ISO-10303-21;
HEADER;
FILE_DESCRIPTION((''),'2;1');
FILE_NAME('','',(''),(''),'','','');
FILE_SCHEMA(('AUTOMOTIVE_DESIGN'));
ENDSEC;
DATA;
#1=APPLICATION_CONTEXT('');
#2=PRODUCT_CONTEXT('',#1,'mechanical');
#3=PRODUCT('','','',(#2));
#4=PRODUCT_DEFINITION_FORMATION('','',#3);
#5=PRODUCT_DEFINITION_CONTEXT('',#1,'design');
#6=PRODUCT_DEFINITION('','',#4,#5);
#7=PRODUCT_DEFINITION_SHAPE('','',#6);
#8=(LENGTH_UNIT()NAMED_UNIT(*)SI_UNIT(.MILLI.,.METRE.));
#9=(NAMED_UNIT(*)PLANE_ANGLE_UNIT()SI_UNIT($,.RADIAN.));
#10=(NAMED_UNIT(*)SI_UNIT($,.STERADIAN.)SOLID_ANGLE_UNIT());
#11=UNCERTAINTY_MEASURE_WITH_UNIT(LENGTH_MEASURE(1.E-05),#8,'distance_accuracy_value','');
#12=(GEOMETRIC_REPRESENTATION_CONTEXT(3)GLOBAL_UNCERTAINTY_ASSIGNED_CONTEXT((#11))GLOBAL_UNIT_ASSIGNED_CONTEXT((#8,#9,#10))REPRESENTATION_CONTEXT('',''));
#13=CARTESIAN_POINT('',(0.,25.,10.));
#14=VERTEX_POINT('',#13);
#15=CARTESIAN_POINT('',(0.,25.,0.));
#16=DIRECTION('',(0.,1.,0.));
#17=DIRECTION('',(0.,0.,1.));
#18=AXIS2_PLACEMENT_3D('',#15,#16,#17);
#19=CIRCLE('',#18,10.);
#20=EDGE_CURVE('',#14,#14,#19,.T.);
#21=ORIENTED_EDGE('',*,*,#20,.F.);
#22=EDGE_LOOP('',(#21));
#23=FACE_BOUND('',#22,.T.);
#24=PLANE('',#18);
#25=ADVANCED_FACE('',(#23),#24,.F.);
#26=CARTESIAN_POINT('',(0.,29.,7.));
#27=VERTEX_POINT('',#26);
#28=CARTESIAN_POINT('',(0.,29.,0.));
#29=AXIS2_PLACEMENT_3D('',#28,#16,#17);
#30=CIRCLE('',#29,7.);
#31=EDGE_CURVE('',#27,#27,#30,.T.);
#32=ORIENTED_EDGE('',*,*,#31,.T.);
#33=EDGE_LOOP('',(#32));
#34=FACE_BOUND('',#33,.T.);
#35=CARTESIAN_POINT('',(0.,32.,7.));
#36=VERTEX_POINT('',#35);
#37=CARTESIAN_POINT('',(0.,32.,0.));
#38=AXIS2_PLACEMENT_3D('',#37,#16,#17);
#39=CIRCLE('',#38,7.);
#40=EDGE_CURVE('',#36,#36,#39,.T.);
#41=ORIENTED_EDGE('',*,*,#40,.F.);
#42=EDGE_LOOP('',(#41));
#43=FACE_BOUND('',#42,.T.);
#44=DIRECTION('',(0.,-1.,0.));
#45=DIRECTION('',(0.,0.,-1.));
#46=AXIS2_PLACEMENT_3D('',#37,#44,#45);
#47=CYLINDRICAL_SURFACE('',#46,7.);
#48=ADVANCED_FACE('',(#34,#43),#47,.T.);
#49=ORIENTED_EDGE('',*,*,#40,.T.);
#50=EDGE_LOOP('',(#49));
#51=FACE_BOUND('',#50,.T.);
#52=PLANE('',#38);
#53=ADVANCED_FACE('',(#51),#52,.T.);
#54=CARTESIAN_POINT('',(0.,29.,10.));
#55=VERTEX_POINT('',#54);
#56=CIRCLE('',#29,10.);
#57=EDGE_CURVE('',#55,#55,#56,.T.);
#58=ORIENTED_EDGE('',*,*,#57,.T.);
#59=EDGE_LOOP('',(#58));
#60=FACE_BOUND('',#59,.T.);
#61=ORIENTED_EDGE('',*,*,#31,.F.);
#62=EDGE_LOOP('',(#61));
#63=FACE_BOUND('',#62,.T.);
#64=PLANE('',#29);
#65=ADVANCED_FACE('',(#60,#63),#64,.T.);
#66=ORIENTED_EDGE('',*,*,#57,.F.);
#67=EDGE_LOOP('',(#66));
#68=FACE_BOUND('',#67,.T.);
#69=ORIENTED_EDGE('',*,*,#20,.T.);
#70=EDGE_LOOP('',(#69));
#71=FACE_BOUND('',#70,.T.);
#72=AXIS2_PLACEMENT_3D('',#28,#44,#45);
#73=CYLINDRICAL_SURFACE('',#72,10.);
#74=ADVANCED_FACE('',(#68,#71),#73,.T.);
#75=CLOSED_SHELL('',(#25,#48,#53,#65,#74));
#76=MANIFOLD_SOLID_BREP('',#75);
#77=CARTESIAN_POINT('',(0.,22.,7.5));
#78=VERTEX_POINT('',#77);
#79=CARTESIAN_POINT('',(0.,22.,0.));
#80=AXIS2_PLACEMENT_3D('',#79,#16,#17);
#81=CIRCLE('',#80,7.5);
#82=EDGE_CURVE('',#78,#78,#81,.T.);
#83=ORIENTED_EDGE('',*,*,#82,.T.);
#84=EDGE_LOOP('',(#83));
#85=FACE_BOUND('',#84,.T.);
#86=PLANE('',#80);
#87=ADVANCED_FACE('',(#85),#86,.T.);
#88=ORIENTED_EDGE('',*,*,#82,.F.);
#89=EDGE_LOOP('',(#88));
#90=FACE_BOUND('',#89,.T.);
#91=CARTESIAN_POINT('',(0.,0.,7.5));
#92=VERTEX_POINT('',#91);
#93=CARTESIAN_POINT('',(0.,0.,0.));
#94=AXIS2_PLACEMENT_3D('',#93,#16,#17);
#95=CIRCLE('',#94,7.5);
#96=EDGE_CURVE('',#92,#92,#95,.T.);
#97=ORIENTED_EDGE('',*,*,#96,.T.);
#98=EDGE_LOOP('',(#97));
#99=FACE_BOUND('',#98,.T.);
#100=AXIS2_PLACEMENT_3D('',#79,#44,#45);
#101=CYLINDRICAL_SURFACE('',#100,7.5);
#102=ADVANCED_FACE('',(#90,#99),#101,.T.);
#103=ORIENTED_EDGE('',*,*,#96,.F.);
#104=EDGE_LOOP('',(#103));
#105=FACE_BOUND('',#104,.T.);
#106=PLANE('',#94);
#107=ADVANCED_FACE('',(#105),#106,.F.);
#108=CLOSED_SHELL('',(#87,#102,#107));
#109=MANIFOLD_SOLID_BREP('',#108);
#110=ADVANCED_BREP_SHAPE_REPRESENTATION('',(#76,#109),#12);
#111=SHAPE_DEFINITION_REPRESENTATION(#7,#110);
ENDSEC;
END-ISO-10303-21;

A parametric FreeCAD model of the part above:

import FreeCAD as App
import Part
import Sketcher
from FreeCAD import Vector
Q = App.Units.Quantity

doc = App.newDocument("Part")
body = doc.addObject("PartDesign::Body", "Body")

sketch1 = body.newObject("Sketcher::SketchObject", "Sketch")
sketch1.AttachmentSupport = (doc.getObject("XZ_Plane"), [""])
sketch1.MapMode = "FlatFace"
sketch1.AttachmentOffset = App.Placement(Vector(0, 0, -25), App.Rotation())
sketch1.addGeometry(Part.Circle(Vector(0, 0, 0), Vector(0, 0, 1), 10), False)
sketch1.addConstraint(Sketcher.Constraint("Coincident", 0, 3, -1, 1))
sketch1.addConstraint(Sketcher.Constraint("Diameter", 0, Q("20 mm")))
pad1 = body.newObject("PartDesign::Pad", "Pad")
pad1.Profile = sketch1
pad1.Length = 4
pad1.Reversed = True

sketch2 = body.newObject("Sketcher::SketchObject", "Sketch001")
sketch2.AttachmentSupport = (doc.getObject("XZ_Plane"), [""])
sketch2.MapMode = "FlatFace"
sketch2.AttachmentOffset = App.Placement(Vector(0, 0, -29), App.Rotation())
sketch2.addGeometry(Part.Circle(Vector(0, 0, 0), Vector(0, 0, 1), 7), False)
sketch2.addConstraint(Sketcher.Constraint("Coincident", 0, 3, -1, 1))
sketch2.addConstraint(Sketcher.Constraint("Diameter", 0, Q("14 mm")))
pad2 = body.newObject("PartDesign::Pad", "Pad001")
pad2.Profile = sketch2
pad2.Length = 3
pad2.Reversed = True
body2 = doc.addObject("PartDesign::Body", "Body001")

sketch3 = body2.newObject("Sketcher::SketchObject", "Sketch002")
sketch3.AttachmentSupport = (doc.getObject("XZ_Plane001"), [""])
sketch3.MapMode = "FlatFace"
sketch3.addGeometry(Part.Circle(Vector(0, 0, 0), Vector(0, 0, 1), 8), False)
sketch3.addConstraint(Sketcher.Constraint("Coincident", 0, 3, -1, 1))
sketch3.addConstraint(Sketcher.Constraint("Diameter", 0, Q("15 mm")))
pad3 = body2.newObject("PartDesign::Pad", "Pad002")
pad3.Profile = sketch3
pad3.Length = 22
pad3.Reversed = True

doc.recompute()
